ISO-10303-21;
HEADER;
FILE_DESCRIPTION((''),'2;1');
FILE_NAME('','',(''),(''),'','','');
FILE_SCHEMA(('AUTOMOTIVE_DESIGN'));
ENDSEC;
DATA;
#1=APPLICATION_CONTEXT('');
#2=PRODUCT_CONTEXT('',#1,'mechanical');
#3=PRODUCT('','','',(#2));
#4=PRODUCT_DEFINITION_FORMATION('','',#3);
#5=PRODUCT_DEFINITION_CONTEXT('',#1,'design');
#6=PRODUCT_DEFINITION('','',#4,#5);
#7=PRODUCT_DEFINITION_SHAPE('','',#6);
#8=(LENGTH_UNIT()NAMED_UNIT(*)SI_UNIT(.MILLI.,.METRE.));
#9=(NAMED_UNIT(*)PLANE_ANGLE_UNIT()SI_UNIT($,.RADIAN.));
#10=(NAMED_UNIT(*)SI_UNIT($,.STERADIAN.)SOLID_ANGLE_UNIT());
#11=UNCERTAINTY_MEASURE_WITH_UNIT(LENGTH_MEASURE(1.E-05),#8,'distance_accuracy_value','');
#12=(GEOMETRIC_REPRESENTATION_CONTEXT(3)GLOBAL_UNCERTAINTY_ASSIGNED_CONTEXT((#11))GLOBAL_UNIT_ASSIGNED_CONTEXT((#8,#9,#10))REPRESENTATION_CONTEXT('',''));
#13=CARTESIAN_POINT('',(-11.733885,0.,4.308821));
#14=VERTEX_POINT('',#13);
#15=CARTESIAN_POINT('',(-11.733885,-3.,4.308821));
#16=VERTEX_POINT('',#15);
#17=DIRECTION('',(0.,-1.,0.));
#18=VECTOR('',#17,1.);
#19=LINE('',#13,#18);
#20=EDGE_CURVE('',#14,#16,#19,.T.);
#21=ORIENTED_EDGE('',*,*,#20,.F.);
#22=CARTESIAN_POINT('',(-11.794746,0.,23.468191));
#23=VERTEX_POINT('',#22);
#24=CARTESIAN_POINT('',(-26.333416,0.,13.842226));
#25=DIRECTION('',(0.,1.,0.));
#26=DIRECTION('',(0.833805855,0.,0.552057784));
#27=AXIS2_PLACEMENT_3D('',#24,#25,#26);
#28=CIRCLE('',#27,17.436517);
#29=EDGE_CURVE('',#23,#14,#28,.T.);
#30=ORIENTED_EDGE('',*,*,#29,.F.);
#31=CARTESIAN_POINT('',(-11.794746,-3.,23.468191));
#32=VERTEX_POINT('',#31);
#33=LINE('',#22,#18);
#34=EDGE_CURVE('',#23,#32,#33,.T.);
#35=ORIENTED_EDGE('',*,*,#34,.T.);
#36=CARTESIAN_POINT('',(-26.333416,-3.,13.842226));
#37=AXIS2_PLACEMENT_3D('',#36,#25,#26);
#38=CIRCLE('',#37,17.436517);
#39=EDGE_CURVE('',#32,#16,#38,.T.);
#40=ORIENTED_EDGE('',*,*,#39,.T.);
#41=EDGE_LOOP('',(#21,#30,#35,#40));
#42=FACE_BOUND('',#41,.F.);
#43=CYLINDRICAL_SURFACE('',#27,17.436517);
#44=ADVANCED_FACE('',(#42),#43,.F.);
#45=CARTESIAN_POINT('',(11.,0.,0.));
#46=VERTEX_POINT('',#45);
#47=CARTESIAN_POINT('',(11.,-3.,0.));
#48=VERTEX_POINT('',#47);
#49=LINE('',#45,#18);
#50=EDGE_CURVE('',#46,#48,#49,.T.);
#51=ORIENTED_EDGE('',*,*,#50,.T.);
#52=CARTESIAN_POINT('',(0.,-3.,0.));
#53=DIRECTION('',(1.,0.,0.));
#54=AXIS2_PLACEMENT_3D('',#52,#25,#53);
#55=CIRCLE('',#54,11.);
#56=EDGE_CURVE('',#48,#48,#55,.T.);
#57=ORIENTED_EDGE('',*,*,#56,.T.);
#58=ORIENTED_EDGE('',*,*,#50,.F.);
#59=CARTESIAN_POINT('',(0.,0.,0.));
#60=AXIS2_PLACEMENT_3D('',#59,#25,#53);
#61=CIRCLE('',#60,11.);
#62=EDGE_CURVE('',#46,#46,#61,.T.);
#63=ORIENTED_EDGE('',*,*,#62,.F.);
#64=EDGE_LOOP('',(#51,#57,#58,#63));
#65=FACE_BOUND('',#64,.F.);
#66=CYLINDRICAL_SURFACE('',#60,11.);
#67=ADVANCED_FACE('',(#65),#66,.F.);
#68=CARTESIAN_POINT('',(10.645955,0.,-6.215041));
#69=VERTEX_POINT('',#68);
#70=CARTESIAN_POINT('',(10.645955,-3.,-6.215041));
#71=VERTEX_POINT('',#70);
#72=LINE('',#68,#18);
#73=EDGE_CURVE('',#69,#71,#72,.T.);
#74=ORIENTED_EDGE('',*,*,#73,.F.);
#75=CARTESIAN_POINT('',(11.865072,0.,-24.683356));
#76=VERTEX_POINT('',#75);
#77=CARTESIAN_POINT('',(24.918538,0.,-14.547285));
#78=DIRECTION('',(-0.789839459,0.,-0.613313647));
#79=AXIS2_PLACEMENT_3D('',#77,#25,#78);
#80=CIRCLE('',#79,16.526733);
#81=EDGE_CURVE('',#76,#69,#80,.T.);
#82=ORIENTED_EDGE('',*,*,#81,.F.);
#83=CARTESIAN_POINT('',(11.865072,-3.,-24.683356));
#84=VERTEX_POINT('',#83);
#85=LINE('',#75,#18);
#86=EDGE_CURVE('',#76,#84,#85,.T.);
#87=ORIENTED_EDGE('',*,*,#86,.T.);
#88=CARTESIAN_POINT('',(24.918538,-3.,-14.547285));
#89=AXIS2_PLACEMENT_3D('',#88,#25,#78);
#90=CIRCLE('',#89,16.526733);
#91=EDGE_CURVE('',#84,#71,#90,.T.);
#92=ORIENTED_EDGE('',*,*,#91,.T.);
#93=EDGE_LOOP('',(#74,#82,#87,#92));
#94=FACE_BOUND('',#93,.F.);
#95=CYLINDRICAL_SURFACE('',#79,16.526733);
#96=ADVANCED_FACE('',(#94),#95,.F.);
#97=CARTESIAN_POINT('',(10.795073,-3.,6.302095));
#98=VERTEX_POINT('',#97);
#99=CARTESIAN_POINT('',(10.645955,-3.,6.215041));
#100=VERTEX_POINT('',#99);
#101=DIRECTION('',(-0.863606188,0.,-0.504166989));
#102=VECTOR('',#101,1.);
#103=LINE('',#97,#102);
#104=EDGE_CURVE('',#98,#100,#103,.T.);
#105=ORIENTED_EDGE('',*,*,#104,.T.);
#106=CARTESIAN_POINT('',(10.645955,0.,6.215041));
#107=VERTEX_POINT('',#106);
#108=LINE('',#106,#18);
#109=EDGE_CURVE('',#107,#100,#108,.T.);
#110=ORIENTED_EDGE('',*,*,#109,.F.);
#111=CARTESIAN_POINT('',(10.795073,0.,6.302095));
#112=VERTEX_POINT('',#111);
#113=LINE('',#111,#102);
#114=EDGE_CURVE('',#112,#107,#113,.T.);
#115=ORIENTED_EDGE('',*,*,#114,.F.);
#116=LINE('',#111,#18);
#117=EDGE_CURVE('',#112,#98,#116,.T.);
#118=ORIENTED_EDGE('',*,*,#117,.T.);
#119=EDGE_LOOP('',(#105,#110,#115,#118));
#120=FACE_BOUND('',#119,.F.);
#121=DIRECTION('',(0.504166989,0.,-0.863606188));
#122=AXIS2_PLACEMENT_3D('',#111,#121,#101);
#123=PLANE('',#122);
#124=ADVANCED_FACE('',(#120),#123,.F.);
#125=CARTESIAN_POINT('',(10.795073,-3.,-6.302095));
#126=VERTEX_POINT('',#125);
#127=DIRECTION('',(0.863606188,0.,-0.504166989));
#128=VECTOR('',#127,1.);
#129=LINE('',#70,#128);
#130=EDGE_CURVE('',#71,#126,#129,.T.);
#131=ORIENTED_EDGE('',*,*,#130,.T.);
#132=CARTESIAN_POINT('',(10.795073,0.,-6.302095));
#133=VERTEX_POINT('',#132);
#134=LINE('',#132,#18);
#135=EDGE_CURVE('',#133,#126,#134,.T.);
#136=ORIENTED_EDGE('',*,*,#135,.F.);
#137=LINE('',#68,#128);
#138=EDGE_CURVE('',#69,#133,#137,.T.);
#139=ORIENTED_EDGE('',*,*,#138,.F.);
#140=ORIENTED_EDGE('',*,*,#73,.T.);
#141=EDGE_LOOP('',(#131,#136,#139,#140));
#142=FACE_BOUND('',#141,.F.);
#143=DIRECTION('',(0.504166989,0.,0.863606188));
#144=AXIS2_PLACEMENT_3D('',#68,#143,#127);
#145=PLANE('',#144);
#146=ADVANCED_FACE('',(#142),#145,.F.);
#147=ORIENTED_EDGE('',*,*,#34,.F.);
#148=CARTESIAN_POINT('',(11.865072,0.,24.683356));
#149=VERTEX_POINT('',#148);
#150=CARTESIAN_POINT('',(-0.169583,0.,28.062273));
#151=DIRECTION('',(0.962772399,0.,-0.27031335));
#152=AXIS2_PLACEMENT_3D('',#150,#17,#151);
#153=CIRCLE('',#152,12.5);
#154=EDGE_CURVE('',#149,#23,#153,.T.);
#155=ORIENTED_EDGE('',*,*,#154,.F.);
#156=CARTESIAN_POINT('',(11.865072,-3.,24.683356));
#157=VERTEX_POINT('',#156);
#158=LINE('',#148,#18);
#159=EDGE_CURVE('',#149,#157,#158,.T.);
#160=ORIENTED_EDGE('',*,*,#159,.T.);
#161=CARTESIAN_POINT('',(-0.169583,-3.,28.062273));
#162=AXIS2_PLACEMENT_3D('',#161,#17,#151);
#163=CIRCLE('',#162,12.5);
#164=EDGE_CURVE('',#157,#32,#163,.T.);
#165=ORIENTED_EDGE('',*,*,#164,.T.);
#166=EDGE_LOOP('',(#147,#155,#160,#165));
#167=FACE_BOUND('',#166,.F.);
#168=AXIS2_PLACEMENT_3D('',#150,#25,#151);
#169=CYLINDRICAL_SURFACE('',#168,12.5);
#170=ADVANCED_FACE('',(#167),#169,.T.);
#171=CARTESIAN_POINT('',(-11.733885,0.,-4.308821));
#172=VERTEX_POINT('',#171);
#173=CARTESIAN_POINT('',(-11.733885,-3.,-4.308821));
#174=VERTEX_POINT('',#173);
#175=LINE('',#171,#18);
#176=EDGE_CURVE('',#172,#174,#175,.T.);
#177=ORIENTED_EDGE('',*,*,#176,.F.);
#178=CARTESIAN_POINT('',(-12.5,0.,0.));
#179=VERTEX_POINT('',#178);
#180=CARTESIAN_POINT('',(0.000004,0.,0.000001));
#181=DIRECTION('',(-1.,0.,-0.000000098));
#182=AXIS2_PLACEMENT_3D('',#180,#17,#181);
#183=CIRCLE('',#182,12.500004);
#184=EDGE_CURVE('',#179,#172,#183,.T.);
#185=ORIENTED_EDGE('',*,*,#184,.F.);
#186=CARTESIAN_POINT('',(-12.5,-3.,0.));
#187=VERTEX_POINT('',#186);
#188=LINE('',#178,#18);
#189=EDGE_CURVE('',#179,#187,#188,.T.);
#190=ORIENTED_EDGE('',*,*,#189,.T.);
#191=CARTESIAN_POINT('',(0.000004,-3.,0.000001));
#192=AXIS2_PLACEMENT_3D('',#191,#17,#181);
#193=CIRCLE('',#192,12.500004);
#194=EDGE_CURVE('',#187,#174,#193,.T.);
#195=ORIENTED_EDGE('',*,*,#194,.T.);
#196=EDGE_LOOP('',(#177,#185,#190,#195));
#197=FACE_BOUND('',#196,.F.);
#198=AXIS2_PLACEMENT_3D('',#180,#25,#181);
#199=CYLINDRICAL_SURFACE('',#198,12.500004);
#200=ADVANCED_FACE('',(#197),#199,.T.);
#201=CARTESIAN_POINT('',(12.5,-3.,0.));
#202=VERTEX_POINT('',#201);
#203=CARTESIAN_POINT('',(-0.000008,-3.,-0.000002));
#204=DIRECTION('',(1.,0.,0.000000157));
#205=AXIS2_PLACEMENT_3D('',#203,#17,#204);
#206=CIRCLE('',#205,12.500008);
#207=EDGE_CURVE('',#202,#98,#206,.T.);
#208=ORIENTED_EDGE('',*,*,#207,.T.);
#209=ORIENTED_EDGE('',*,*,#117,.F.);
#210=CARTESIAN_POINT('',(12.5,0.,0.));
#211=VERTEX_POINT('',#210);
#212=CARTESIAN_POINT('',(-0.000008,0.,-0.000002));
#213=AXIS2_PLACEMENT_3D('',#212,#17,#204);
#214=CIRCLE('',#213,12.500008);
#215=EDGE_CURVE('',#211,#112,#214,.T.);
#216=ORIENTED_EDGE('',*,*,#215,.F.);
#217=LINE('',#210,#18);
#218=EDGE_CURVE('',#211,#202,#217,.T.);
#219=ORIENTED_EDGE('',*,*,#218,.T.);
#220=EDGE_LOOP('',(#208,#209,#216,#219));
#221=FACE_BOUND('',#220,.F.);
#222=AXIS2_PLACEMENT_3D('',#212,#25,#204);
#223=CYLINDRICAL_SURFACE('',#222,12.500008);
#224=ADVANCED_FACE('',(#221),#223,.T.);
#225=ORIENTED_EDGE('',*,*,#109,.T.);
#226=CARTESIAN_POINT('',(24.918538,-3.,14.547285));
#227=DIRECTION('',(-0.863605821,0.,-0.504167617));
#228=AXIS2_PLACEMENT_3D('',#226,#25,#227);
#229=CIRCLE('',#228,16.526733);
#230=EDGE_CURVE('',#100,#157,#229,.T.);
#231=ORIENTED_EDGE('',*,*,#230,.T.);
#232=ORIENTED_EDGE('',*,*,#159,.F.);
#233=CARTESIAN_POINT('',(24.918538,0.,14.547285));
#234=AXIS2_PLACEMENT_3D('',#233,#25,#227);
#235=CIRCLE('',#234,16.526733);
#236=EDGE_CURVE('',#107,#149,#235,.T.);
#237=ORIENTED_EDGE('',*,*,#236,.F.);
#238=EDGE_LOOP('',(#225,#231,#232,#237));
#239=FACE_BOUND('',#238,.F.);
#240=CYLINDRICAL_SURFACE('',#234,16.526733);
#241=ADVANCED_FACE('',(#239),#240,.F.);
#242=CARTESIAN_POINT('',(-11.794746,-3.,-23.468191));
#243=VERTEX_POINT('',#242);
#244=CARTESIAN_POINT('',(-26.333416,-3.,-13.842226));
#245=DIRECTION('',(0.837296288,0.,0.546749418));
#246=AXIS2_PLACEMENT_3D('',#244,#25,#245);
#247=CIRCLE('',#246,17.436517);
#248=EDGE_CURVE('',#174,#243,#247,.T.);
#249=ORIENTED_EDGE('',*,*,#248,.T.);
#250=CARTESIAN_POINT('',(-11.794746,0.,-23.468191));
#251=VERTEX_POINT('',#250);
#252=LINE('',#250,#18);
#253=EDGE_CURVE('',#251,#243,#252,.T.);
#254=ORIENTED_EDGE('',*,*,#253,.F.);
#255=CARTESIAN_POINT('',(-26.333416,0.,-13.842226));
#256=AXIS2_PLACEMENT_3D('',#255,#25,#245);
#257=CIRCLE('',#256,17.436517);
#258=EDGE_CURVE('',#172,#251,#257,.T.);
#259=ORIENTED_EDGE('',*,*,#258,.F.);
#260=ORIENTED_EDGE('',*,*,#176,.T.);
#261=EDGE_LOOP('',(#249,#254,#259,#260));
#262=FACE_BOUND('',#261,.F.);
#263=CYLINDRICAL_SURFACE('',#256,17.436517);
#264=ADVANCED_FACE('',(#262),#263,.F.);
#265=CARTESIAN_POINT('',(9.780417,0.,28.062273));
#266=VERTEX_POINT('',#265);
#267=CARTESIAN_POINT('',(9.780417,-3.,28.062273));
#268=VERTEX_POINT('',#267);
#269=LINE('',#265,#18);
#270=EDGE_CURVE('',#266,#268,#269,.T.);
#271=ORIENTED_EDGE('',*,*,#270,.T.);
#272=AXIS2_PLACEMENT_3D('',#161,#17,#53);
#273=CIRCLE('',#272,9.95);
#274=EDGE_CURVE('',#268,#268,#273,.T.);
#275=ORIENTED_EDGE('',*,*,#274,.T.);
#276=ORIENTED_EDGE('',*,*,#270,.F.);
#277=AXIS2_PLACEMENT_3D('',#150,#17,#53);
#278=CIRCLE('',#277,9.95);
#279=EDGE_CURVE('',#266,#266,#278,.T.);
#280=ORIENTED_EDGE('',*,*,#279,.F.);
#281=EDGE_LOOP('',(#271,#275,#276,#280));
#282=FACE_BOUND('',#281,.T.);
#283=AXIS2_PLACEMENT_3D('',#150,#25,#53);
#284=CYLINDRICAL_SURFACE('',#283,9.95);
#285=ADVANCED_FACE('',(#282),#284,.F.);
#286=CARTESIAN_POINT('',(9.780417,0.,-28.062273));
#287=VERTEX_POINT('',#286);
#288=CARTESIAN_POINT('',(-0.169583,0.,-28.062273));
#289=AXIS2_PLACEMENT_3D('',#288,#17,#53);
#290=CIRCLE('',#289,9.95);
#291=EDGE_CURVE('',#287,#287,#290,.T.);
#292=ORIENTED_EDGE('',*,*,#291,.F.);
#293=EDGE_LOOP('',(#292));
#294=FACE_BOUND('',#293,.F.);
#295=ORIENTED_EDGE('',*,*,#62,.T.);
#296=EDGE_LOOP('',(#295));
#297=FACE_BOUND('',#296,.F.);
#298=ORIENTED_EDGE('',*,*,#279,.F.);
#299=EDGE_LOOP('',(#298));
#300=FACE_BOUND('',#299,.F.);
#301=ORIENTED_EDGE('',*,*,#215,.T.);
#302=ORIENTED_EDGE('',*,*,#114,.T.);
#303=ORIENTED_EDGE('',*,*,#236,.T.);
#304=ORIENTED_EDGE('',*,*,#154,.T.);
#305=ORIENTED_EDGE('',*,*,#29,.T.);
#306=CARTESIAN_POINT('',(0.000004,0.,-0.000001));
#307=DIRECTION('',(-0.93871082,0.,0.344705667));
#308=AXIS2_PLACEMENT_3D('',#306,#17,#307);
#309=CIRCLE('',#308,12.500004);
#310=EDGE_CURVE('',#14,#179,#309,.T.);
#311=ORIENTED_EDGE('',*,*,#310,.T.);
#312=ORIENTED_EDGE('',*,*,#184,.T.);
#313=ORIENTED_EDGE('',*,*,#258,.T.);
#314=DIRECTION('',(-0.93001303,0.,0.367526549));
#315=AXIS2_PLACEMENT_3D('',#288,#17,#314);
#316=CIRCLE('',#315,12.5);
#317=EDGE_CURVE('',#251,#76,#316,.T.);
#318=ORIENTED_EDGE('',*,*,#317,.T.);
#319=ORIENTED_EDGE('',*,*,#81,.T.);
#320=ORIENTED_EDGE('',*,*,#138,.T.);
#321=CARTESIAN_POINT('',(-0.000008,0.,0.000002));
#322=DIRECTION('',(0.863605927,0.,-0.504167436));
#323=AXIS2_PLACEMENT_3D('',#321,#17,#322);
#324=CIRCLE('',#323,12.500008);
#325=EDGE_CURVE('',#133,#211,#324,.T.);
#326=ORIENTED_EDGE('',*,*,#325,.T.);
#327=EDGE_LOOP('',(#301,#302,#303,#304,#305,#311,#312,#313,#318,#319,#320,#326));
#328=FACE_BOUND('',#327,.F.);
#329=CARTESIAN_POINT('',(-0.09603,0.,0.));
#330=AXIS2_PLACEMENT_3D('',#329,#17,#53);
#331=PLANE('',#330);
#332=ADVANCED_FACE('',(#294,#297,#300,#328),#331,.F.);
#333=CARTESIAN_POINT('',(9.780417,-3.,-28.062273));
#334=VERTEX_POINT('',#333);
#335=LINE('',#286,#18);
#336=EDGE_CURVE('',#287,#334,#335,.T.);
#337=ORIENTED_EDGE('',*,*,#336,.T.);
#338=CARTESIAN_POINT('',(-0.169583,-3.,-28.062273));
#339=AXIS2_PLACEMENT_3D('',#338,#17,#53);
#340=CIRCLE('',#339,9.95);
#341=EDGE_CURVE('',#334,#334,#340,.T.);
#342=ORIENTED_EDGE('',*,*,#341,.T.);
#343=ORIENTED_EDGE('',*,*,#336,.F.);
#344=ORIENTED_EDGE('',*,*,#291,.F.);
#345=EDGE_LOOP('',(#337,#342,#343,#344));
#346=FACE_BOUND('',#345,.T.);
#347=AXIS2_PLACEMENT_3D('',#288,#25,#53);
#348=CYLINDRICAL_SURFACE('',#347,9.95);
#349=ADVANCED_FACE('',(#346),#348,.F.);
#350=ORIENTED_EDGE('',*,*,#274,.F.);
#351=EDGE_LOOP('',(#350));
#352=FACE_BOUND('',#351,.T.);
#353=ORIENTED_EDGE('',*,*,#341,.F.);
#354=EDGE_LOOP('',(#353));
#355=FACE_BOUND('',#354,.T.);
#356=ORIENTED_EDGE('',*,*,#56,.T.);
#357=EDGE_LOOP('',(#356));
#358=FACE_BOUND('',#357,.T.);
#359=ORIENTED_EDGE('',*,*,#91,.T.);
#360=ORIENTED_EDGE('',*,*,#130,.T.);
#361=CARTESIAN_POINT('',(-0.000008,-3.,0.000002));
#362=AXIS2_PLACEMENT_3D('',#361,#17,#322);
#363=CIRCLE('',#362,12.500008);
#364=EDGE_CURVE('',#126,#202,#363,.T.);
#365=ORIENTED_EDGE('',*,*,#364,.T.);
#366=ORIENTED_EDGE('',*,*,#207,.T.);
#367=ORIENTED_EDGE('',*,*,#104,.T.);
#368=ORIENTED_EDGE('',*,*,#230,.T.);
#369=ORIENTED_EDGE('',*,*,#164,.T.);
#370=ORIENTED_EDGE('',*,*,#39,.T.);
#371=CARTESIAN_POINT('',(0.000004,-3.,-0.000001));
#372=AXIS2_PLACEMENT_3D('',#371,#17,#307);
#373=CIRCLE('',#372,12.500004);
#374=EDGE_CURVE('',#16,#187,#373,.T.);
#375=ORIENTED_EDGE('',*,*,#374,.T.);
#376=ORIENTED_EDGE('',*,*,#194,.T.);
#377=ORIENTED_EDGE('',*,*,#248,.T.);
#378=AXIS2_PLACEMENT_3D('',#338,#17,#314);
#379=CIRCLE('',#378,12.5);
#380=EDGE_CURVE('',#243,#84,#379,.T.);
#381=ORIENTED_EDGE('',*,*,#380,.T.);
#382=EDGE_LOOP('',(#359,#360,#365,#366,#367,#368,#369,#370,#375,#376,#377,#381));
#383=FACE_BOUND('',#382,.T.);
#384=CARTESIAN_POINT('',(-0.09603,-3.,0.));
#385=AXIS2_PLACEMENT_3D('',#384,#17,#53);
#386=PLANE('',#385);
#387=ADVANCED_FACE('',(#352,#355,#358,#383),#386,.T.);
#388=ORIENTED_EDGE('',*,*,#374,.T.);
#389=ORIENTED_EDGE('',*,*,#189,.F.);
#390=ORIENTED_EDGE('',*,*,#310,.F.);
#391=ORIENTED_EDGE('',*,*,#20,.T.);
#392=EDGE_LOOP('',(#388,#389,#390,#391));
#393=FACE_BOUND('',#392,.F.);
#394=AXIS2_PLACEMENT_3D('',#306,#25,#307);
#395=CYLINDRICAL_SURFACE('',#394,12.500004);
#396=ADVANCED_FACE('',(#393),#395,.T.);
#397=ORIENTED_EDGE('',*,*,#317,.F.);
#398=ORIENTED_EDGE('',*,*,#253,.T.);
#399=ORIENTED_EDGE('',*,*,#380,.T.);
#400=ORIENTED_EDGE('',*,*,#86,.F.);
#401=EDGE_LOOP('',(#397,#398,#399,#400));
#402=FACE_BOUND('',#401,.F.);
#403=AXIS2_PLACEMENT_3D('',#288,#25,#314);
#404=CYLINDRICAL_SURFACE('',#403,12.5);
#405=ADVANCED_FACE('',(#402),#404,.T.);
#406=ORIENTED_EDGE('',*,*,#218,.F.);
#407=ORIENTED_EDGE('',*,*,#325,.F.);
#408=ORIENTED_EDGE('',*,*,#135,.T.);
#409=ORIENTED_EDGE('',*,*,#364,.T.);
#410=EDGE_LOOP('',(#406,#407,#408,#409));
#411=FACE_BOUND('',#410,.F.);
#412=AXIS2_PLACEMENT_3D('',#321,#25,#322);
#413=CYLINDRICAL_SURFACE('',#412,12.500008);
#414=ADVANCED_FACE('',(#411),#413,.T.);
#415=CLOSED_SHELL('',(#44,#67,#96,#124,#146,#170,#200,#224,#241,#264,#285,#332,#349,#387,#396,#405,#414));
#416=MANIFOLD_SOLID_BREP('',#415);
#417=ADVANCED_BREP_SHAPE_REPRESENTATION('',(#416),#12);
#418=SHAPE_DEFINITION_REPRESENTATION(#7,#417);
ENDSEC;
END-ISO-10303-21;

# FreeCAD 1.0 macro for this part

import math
import FreeCAD as App
import Part
import Sketcher
Q = App.Units.Quantity

doc = App.newDocument("Part")
body = doc.addObject("PartDesign::Body", "Body")

# Sketch on XZ plane
sketch1 = doc.addObject("Sketcher::SketchObject", "Sketch")
body.addObject(sketch1)
sketch1.AttachmentSupport = (doc.XZ_Plane, [""])
sketch1.MapMode = "FlatFace"
sketch1.addGeometry([
    Part.ArcOfCircle(Part.Circle(App.Vector(24.92, 14.55, 0), App.Vector(0, 0, 1), 16.53), math.radians(142), math.radians(210)),  # 0
    Part.ArcOfCircle(Part.Circle(App.Vector(-0.17, 28.06, 0), App.Vector(0, 0, 1), 12.5), math.radians(-16), math.radians(202)),  # 1
    Part.ArcOfCircle(Part.Circle(App.Vector(-26.33, 13.84, 0), App.Vector(0, 0, 1), 17.44), math.radians(-33), math.radians(34)),  # 2
    Part.ArcOfCircle(Part.Circle(App.Vector(0, 0, 0), App.Vector(0, 0, 1), 12.5), math.radians(160), math.radians(180)),  # 3
    Part.ArcOfCircle(Part.Circle(App.Vector(0, 0, 0), App.Vector(0, 0, 1), 12.5), math.radians(-180), math.radians(-160)),  # 4
    Part.ArcOfCircle(Part.Circle(App.Vector(-26.33, -13.84, 0), App.Vector(0, 0, 1), 17.44), math.radians(-34), math.radians(33)),  # 5
    Part.ArcOfCircle(Part.Circle(App.Vector(-0.17, -28.06, 0), App.Vector(0, 0, 1), 12.5), math.radians(158), math.radians(376)),  # 6
    Part.ArcOfCircle(Part.Circle(App.Vector(24.92, -14.55, 0), App.Vector(0, 0, 1), 16.53), math.radians(150), math.radians(218)),  # 7
    Part.LineSegment(App.Vector(10.65, -6.22, 0), App.Vector(10.8, -6.3, 0)),  # 8
    Part.ArcOfCircle(Part.Circle(App.Vector(0, 0, 0), App.Vector(0, 0, 1), 12.5), math.radians(-30), math.radians(0)),  # 9
    Part.ArcOfCircle(Part.Circle(App.Vector(0, 0, 0), App.Vector(0, 0, 1), 12.5), math.radians(0), math.radians(30)),  # 10
    Part.LineSegment(App.Vector(10.8, 6.3, 0), App.Vector(10.65, 6.22, 0)),  # 11
    Part.Circle(App.Vector(-0.17, -28.06, 0), App.Vector(0, 0, 1), 9.95),  # 12
    Part.Circle(App.Vector(0, 0, 0), App.Vector(0, 0, 1), 11),  # 13
    Part.Circle(App.Vector(-0.17, 28.06, 0), App.Vector(0, 0, 1), 9.95),  # 14
], False)
sketch1.addConstraint([
    Sketcher.Constraint("Coincident", 0, 1, 1, 1),
    Sketcher.Constraint("Coincident", 1, 2, 2, 2),
    Sketcher.Constraint("Coincident", 2, 1, 3, 1),
    Sketcher.Constraint("Tangent", 3, 2, 4, 1),
    Sketcher.Constraint("Coincident", 4, 2, 5, 2),
    Sketcher.Constraint("Coincident", 5, 1, 6, 1),
    Sketcher.Constraint("Coincident", 6, 2, 7, 2),
    Sketcher.Constraint("Coincident", 7, 1, 8, 1),
    Sketcher.Constraint("Coincident", 8, 2, 9, 1),
    Sketcher.Constraint("Tangent", 9, 2, 10, 1),
    Sketcher.Constraint("Coincident", 10, 2, 11, 1),
    Sketcher.Constraint("Coincident", 11, 2, 0, 2),
    Sketcher.Constraint("Coincident", 3, 3, -1, 1),
    Sketcher.Constraint("Coincident", 9, 3, -1, 1),
    Sketcher.Constraint("Coincident", 13, 3, -1, 1),
    Sketcher.Constraint("Coincident", 12, 3, 6, 3),
    Sketcher.Constraint("Coincident", 14, 3, 1, 3),
    Sketcher.Constraint("Equal", 3, 4),
    Sketcher.Constraint("Equal", 2, 5),
    Sketcher.Constraint("Equal", 1, 6),
    Sketcher.Constraint("Equal", 0, 7),
    Sketcher.Constraint("Equal", 9, 10),
    Sketcher.Constraint("Equal", 12, 14),
    Sketcher.Constraint("Symmetric", 3, 2, 9, 2, -1, 1),
    Sketcher.Constraint("Symmetric", 2, 3, 5, 3, -1),
    Sketcher.Constraint("Symmetric", 1, 3, 6, 3, -1),
    Sketcher.Constraint("Symmetric", 0, 3, 7, 3, -1),
    Sketcher.Constraint("PointOnObject", 3, 2, -1),
    Sketcher.Constraint("Vertical", 8, 2, 10, 2),
    Sketcher.Constraint("Vertical", 7, 1, 11, 2),
    Sketcher.Constraint("Diameter", 13, Q("22 mm")),
    Sketcher.Constraint("Diameter", 12, Q("19.9 mm")),
    Sketcher.Constraint("Radius", 1, Q("12.5 mm")),
    Sketcher.Constraint("DistanceX", 3, 2, -1, 1, Q("12.5 mm")),
    Sketcher.Constraint("Radius", 0, Q("16.526733 mm")),
    Sketcher.Constraint("Radius", 2, Q("17.436517 mm")),
    Sketcher.Constraint("DistanceY", 5, 3, 1, 3, Q("41.904499 mm")),
    Sketcher.Constraint("Distance", 8, Q("0.172669 mm")),
    Sketcher.Constraint("DistanceX", -1, 1, 0, 3, Q("24.918538 mm")),
    Sketcher.Constraint("DistanceY", -1, 1, 1, 2, Q("23.468191 mm")),
    Sketcher.Constraint("DistanceY", -1, 1, 2, 1, Q("4.308821 mm")),
    Sketcher.Constraint("DistanceX", -1, 1, 6, 2, Q("11.865072 mm")),
    Sketcher.Constraint("DistanceY", 7, 1, -1, 1, Q("6.215041 mm")),
    Sketcher.Constraint("DistanceX", 3, 3, 8, 2, Q("10.795069 mm")),
])
pad1 = doc.addObject("PartDesign::Pad", "Pad")
body.addObject(pad1)
pad1.Profile = sketch1
pad1.Length = 3

doc.recompute()
